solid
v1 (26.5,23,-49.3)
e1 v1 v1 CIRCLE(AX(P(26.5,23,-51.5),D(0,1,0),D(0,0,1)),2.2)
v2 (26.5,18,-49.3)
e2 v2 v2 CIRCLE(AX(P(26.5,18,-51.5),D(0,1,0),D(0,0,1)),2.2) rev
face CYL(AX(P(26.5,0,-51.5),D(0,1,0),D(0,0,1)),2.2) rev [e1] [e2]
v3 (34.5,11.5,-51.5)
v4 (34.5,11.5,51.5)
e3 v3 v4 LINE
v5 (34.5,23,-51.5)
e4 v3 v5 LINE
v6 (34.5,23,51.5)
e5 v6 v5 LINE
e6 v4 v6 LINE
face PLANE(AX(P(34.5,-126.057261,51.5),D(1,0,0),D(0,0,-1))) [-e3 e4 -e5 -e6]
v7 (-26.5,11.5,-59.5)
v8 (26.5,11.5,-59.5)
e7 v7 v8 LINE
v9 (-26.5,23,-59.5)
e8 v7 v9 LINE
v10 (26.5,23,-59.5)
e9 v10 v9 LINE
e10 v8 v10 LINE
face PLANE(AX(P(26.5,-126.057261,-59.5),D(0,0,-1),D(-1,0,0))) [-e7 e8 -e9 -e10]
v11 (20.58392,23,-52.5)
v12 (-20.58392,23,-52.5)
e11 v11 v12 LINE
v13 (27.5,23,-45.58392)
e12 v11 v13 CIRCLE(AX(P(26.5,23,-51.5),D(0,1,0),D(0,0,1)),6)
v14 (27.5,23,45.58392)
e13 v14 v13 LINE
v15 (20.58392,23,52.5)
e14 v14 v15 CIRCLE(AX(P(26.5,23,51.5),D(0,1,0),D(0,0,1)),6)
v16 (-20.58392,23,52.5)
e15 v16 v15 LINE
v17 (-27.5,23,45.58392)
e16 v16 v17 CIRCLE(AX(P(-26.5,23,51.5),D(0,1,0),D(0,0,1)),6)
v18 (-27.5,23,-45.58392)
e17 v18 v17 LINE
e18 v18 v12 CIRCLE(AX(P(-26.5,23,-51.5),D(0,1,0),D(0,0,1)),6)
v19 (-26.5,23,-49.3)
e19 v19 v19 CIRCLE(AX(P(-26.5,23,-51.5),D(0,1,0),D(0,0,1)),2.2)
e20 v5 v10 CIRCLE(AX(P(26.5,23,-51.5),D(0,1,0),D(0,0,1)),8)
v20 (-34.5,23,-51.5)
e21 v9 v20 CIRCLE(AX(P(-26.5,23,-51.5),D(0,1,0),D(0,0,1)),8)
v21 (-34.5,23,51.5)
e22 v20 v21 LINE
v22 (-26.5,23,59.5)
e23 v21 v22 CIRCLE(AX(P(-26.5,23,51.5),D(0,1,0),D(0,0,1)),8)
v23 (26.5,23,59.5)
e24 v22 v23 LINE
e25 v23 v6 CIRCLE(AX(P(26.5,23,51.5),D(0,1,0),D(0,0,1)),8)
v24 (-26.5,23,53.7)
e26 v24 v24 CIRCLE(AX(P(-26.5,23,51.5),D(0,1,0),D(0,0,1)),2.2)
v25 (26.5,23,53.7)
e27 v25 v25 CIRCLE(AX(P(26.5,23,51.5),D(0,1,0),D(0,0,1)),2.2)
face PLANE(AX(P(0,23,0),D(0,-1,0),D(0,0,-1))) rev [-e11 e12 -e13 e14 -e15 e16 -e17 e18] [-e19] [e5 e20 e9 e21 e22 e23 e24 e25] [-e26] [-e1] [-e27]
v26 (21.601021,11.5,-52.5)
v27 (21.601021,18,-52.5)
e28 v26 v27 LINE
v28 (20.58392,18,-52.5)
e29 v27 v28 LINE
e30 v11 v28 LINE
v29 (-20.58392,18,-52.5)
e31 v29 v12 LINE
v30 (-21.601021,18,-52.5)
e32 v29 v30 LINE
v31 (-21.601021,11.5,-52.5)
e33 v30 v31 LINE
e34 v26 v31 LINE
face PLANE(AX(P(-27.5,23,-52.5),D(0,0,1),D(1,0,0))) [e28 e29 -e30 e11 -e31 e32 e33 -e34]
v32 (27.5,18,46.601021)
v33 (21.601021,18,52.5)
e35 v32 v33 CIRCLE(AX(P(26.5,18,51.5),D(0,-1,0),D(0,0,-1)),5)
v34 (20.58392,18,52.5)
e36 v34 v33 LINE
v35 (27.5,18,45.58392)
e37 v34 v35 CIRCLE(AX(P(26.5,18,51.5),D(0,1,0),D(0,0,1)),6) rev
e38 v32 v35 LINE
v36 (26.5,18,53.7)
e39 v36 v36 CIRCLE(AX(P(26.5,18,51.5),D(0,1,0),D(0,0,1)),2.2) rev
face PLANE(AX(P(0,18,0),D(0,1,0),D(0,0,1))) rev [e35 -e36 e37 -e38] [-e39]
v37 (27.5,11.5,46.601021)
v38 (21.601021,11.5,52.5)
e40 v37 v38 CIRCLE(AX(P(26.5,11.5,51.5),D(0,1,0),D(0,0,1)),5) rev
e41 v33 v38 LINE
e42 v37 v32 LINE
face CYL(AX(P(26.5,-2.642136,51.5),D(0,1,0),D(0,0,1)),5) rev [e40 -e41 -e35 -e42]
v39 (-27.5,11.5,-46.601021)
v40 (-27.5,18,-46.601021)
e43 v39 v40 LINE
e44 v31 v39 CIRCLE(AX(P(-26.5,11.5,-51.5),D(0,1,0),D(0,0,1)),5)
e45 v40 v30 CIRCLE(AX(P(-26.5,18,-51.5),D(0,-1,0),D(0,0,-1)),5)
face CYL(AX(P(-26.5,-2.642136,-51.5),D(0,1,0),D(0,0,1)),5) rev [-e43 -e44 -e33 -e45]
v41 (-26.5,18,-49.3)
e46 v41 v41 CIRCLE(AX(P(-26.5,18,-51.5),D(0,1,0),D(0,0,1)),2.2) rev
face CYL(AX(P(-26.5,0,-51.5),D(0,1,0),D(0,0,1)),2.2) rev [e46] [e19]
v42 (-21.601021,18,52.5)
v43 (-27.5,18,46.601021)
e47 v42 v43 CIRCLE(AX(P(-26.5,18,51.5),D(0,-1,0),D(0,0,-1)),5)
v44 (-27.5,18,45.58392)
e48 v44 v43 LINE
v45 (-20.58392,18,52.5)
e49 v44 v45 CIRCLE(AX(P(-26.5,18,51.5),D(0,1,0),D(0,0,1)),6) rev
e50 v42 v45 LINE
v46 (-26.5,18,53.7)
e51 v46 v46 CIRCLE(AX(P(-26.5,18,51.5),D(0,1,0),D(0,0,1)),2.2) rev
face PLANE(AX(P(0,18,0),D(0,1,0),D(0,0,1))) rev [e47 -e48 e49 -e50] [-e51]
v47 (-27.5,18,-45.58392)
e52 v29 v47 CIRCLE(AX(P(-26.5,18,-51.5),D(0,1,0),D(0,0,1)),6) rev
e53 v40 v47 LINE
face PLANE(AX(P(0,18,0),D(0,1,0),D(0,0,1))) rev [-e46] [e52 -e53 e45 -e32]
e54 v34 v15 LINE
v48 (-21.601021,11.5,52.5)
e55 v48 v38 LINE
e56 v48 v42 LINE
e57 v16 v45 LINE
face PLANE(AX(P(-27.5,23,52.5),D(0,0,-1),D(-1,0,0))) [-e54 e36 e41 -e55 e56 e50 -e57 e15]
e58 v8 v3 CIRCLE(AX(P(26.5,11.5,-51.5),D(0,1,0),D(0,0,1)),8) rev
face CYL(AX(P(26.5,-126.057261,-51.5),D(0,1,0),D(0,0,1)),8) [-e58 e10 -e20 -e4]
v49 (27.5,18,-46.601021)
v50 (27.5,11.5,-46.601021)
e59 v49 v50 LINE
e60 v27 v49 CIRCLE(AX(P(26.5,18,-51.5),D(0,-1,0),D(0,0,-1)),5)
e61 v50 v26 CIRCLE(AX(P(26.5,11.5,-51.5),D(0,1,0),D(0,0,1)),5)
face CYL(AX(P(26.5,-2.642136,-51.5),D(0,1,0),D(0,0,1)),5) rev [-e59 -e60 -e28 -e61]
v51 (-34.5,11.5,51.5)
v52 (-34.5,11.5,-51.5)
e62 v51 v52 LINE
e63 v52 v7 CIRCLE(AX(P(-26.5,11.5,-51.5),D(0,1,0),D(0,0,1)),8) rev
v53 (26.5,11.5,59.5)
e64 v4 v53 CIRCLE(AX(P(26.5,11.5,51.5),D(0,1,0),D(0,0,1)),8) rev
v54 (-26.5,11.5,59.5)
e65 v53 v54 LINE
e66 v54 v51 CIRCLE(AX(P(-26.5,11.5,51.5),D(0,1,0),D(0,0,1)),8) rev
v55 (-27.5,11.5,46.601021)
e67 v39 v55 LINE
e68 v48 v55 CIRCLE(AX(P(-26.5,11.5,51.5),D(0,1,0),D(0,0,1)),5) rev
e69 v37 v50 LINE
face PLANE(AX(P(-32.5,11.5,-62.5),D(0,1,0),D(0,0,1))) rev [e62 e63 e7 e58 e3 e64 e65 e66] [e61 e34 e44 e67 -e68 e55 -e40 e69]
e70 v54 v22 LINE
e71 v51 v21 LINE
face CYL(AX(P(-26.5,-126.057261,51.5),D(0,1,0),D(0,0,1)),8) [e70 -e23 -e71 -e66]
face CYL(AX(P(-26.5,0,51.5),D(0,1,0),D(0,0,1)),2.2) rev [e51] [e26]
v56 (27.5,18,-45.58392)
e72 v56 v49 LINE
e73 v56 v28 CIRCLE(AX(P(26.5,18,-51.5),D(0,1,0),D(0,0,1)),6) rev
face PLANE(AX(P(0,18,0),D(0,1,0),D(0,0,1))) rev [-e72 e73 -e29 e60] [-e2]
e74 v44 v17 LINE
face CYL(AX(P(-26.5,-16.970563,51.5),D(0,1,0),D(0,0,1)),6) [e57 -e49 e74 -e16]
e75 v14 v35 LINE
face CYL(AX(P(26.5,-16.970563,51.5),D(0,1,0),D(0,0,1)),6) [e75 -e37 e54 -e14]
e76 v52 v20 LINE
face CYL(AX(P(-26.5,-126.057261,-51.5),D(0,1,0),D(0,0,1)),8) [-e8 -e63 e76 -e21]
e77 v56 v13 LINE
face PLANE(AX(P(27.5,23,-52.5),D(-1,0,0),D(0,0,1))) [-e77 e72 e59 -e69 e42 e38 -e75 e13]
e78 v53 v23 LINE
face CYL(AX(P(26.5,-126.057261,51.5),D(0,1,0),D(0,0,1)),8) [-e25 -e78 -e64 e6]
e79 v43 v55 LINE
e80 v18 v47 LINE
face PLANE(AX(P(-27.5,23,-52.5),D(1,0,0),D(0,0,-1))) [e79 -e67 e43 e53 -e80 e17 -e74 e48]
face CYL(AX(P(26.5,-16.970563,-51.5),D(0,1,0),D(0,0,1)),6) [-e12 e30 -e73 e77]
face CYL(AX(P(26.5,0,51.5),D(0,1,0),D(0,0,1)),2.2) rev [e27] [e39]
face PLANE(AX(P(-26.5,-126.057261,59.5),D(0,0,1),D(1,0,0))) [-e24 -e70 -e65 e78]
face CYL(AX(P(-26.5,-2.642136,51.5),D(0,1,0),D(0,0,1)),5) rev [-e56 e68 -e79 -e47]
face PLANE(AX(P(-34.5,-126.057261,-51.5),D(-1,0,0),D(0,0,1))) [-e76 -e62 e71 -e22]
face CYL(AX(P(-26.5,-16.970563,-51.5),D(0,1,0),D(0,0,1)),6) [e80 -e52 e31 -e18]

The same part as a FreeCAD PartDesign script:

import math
import FreeCAD as App
import Part
import Sketcher


def edges_at(feature, points):
    """Names of the edges that pass closest to the given points."""
    edges = feature.Shape.Edges
    near = lambda p: min(range(len(edges)), key=lambda i: edges[i].distToShape(Part.Vertex(*p))[0])
    return sorted({f"Edge{near(p) + 1}" for p in points})

doc = App.newDocument("Part")
params = doc.addObject("Spreadsheet::Sheet", "Params")
for row, (alias, value) in enumerate([
    ("sketch1_width", "65 mm"),
    ("sketch1_width2", "55 mm"),
    ("sketch1_height", "115 mm"),
    ("sketch1_height2", "105 mm"),
    ("pad1_length", "23 mm"),
    ("fillet_radius", "6 mm"),
    ("sketch2_diameter", "12 mm"),
    ("pad2_length", "23 mm"),
    ("sketch3_diameter", "4.4 mm"),
    ("pocket1_length", "23 mm"),
    ("sketch4_width", "55 mm"),
    ("sketch4_height", "105 mm"),
    ("pocket2_length", "13 mm"),
    ("sketch5_width", "65 mm"),
    ("sketch5_height", "11.5 mm"),
    ("pocket3_length", "120 mm"),
    ("sketch6_diameter", "10 mm"),
    ("pocket4_length", "6.5 mm"),
    ("sketch7_radius", "8 mm"),
    ("sketch7_radius2", "6 mm"),
    ("sketch7_width", "53 mm"),
    ("sketch7_height", "103 mm"),
    ("pad3_length", "11.5 mm"),
], start=1):
    params.set(f"A{row}", alias)
    params.set(f"B{row}", "=" + value)
    params.setAlias(f"B{row}", alias)

body = doc.addObject("PartDesign::Body", "Body")

# Sketch on XZ plane
sketch1 = body.newObject("Sketcher::SketchObject", "Sketch")
sketch1.AttachmentSupport = (doc.getObject("XZ_Plane"), [""])
sketch1.MapMode = "FlatFace"
sketch1.addGeometry([
    Part.LineSegment(App.Vector(-32.5, -57.5, 0), App.Vector(-32.5, 57.5, 0)),  # 0
    Part.LineSegment(App.Vector(-32.5, 57.5, 0), App.Vector(32.5, 57.5, 0)),  # 1
    Part.LineSegment(App.Vector(32.5, 57.5, 0), App.Vector(32.5, -57.5, 0)),  # 2
    Part.LineSegment(App.Vector(32.5, -57.5, 0), App.Vector(-32.5, -57.5, 0)),  # 3
    Part.LineSegment(App.Vector(27.5, 52.5, 0), App.Vector(-27.5, 52.5, 0)),  # 4
    Part.LineSegment(App.Vector(-27.5, 52.5, 0), App.Vector(-27.5, -52.5, 0)),  # 5
    Part.LineSegment(App.Vector(-27.5, -52.5, 0), App.Vector(27.5, -52.5, 0)),  # 6
    Part.LineSegment(App.Vector(27.5, -52.5, 0), App.Vector(27.5, 52.5, 0)),  # 7
], False)
sketch1.addConstraint([
    Sketcher.Constraint("Coincident", 0, 2, 1, 1),
    Sketcher.Constraint("Coincident", 1, 2, 2, 1),
    Sketcher.Constraint("Coincident", 2, 2, 3, 1),
    Sketcher.Constraint("Coincident", 3, 2, 0, 1),
    Sketcher.Constraint("Coincident", 4, 2, 5, 1),
    Sketcher.Constraint("Coincident", 5, 2, 6, 1),
    Sketcher.Constraint("Coincident", 6, 2, 7, 1),
    Sketcher.Constraint("Coincident", 7, 2, 4, 1),
    Sketcher.Constraint("Vertical", 0),
    Sketcher.Constraint("Horizontal", 1),
    Sketcher.Constraint("Vertical", 2),
    Sketcher.Constraint("Horizontal", 3),
    Sketcher.Constraint("Horizontal", 4),
    Sketcher.Constraint("Vertical", 5),
    Sketcher.Constraint("Horizontal", 6),
    Sketcher.Constraint("Vertical", 7),
    Sketcher.Constraint("Symmetric", 0, 2, 2, 2, -1, 1),
    Sketcher.Constraint("Symmetric", 4, 2, 6, 2, -1, 1),
    Sketcher.Constraint("DistanceX", 1, 1, 1, 2, 65.0),
    Sketcher.Constraint("DistanceX", 4, 2, 4, 1, 55.0),
    Sketcher.Constraint("DistanceY", 0, 1, 0, 2, 115.0),
    Sketcher.Constraint("DistanceY", 5, 2, 5, 1, 105.0),
])
sketch1.setExpression("Constraints[18]", "Params.sketch1_width")
sketch1.setExpression("Constraints[19]", "Params.sketch1_width2")
sketch1.setExpression("Constraints[20]", "Params.sketch1_height")
sketch1.setExpression("Constraints[21]", "Params.sketch1_height2")
pad1 = body.newObject("PartDesign::Pad", "Pad")
pad1.Profile = sketch1
pad1.setExpression("Length", "Params.pad1_length")
pad1.Reversed = True
doc.recompute()

fillet = body.newObject("PartDesign::Fillet", "Fillet")
fillet.Base = (pad1, edges_at(pad1, [
    (32.5, 11.5, 57.5),
    (-32.5, 11.5, 57.5),
    (-32.5, 11.5, -57.5),
    (32.5, 11.5, -57.5),
]))
fillet.setExpression("Radius", "Params.fillet_radius")

# Sketch on XZ plane
sketch2 = body.newObject("Sketcher::SketchObject", "Sketch001")
sketch2.AttachmentSupport = (doc.getObject("XZ_Plane"), [""])
sketch2.MapMode = "FlatFace"
sketch2.AttachmentOffset = App.Placement(App.Vector(0, 0, -23), App.Rotation())
sketch2.addGeometry([
    Part.Circle(App.Vector(-26.5, -51.5, 0), App.Vector(0, 0, 1), 6),
    Part.Circle(App.Vector(26.5, -51.5, 0), App.Vector(0, 0, 1), 6),
    Part.Circle(App.Vector(-26.5, 51.5, 0), App.Vector(0, 0, 1), 6),
    Part.Circle(App.Vector(26.5, 51.5, 0), App.Vector(0, 0, 1), 6),
], False)
sketch2.addConstraint([
    Sketcher.Constraint("Equal", 0, 1),
    Sketcher.Constraint("Equal", 1, 2),
    Sketcher.Constraint("Equal", 2, 3),
    Sketcher.Constraint("Symmetric", 1, 3, 2, 3, -1, 1),
    Sketcher.Constraint("Symmetric", 0, 3, 3, 3, -1, 1),
    Sketcher.Constraint("Symmetric", 0, 3, 1, 3, -2),
    Sketcher.Constraint("Diameter", 0, 12.0),
    Sketcher.Constraint("DistanceX", 0, 3, 1, 3, 53.0),
    Sketcher.Constraint("DistanceY", 0, 3, 2, 3, 103.0),
])
sketch2.setExpression("Constraints[6]", "Params.sketch2_diameter")
pad2 = body.newObject("PartDesign::Pad", "Pad001")
pad2.Profile = sketch2
pad2.setExpression("Length", "Params.pad2_length")

# Sketch on XZ plane
sketch3 = body.newObject("Sketcher::SketchObject", "Sketch002")
sketch3.AttachmentSupport = (doc.getObject("XZ_Plane"), [""])
sketch3.MapMode = "FlatFace"
sketch3.AttachmentOffset = App.Placement(App.Vector(0, 0, -23), App.Rotation())
sketch3.addGeometry([
    Part.Circle(App.Vector(-26.5, -51.5, 0), App.Vector(0, 0, 1), 2.2),
    Part.Circle(App.Vector(26.5, -51.5, 0), App.Vector(0, 0, 1), 2.2),
    Part.Circle(App.Vector(26.5, 51.5, 0), App.Vector(0, 0, 1), 2.2),
    Part.Circle(App.Vector(-26.5, 51.5, 0), App.Vector(0, 0, 1), 2.2),
], False)
sketch3.addConstraint([
    Sketcher.Constraint("Equal", 0, 1),
    Sketcher.Constraint("Equal", 1, 2),
    Sketcher.Constraint("Equal", 2, 3),
    Sketcher.Constraint("Symmetric", 0, 3, 2, 3, -1, 1),
    Sketcher.Constraint("Symmetric", 1, 3, 3, 3, -1, 1),
    Sketcher.Constraint("Symmetric", 0, 3, 1, 3, -2),
    Sketcher.Constraint("Diameter", 0, 4.4),
    Sketcher.Constraint("DistanceX", 0, 3, 1, 3, 53.0),
    Sketcher.Constraint("DistanceY", 1, 3, 2, 3, 103.0),
])
sketch3.setExpression("Constraints[6]", "Params.sketch3_diameter")
pocket1 = body.newObject("PartDesign::Pocket", "Pocket")
pocket1.Profile = sketch3
pocket1.setExpression("Length", "Params.pocket1_length")
pocket1.Reversed = True

# Sketch on XZ plane
sketch4 = body.newObject("Sketcher::SketchObject", "Sketch003")
sketch4.AttachmentSupport = (doc.getObject("XZ_Plane"), [""])
sketch4.MapMode = "FlatFace"
sketch4.AttachmentOffset = App.Placement(App.Vector(0, 0, -18), App.Rotation())
sketch4.addGeometry([
    Part.LineSegment(App.Vector(-27.5, -52.5, 0), App.Vector(-27.5, 52.5, 0)),
    Part.LineSegment(App.Vector(-27.5, 52.5, 0), App.Vector(27.5, 52.5, 0)),
    Part.LineSegment(App.Vector(27.5, 52.5, 0), App.Vector(27.5, -52.5, 0)),
    Part.LineSegment(App.Vector(27.5, -52.5, 0), App.Vector(-27.5, -52.5, 0)),
], False)
sketch4.addConstraint([
    Sketcher.Constraint("Coincident", 0, 2, 1, 1),
    Sketcher.Constraint("Coincident", 1, 2, 2, 1),
    Sketcher.Constraint("Coincident", 2, 2, 3, 1),
    Sketcher.Constraint("Coincident", 3, 2, 0, 1),
    Sketcher.Constraint("Vertical", 0),
    Sketcher.Constraint("Horizontal", 1),
    Sketcher.Constraint("Vertical", 2),
    Sketcher.Constraint("Horizontal", 3),
    Sketcher.Constraint("Symmetric", 0, 2, 2, 2, -1, 1),
    Sketcher.Constraint("DistanceX", 1, 1, 1, 2, 55.0),
    Sketcher.Constraint("DistanceY", 0, 1, 0, 2, 105.0),
])
sketch4.setExpression("Constraints[9]", "Params.sketch4_width")
sketch4.setExpression("Constraints[10]", "Params.sketch4_height")
pocket2 = body.newObject("PartDesign::Pocket", "Pocket001")
pocket2.Profile = sketch4
pocket2.setExpression("Length", "Params.pocket2_length")
pocket2.Reversed = True

# Sketch on XY plane
sketch5 = body.newObject("Sketcher::SketchObject", "Sketch004")
sketch5.AttachmentSupport = (doc.getObject("XY_Plane"), [""])
sketch5.MapMode = "FlatFace"
sketch5.AttachmentOffset = App.Placement(App.Vector(0, 0, 57.5), App.Rotation())
sketch5.addGeometry([
    Part.LineSegment(App.Vector(-32.5, 11.5, 0), App.Vector(-32.5, 0, 0)),
    Part.LineSegment(App.Vector(-32.5, 0, 0), App.Vector(32.5, 0, 0)),
    Part.LineSegment(App.Vector(32.5, 0, 0), App.Vector(32.5, 11.5, 0)),
    Part.LineSegment(App.Vector(32.5, 11.5, 0), App.Vector(-32.5, 11.5, 0)),
], False)
sketch5.addConstraint([
    Sketcher.Constraint("Coincident", 0, 2, 1, 1),
    Sketcher.Constraint("Coincident", 1, 2, 2, 1),
    Sketcher.Constraint("Coincident", 2, 2, 3, 1),
    Sketcher.Constraint("Coincident", 3, 2, 0, 1),
    Sketcher.Constraint("Vertical", 0),
    Sketcher.Constraint("Horizontal", 1),
    Sketcher.Constraint("Vertical", 2),
    Sketcher.Constraint("Horizontal", 3),
    Sketcher.Constraint("Symmetric", 0, 2, 1, 2, -1, 1),
    Sketcher.Constraint("DistanceX", 1, 1, 1, 2, 65.0),
    Sketcher.Constraint("DistanceY", 0, 2, 0, 1, 11.5),
])
sketch5.setExpression("Constraints[9]", "Params.sketch5_width")
sketch5.setExpression("Constraints[10]", "Params.sketch5_height")
pocket3 = body.newObject("PartDesign::Pocket", "Pocket002")
pocket3.Profile = sketch5
pocket3.setExpression("Length", "Params.pocket3_length")

# Sketch on XZ plane
sketch6 = body.newObject("Sketcher::SketchObject", "Sketch005")
sketch6.AttachmentSupport = (doc.getObject("XZ_Plane"), [""])
sketch6.MapMode = "FlatFace"
sketch6.AttachmentOffset = App.Placement(App.Vector(0, 0, -18), App.Rotation())
sketch6.addGeometry([
    Part.Circle(App.Vector(-26.5, -51.5, 0), App.Vector(0, 0, 1), 5),
    Part.Circle(App.Vector(26.5, -51.5, 0), App.Vector(0, 0, 1), 5),
    Part.Circle(App.Vector(26.5, 51.5, 0), App.Vector(0, 0, 1), 5),
    Part.Circle(App.Vector(-26.5, 51.5, 0), App.Vector(0, 0, 1), 5),
], False)
sketch6.addConstraint([
    Sketcher.Constraint("Equal", 0, 1),
    Sketcher.Constraint("Equal", 1, 2),
    Sketcher.Constraint("Equal", 2, 3),
    Sketcher.Constraint("Symmetric", 0, 3, 2, 3, -1, 1),
    Sketcher.Constraint("Symmetric", 1, 3, 3, 3, -1, 1),
    Sketcher.Constraint("Symmetric", 0, 3, 1, 3, -2),
    Sketcher.Constraint("Diameter", 0, 10.0),
    Sketcher.Constraint("DistanceX", 0, 3, 1, 3, 53.0),
    Sketcher.Constraint("DistanceY", 1, 3, 2, 3, 103.0),
])
sketch6.setExpression("Constraints[6]", "Params.sketch6_diameter")
pocket4 = body.newObject("PartDesign::Pocket", "Pocket003")
pocket4.Profile = sketch6
pocket4.setExpression("Length", "Params.pocket4_length")
pocket4.Reversed = True

# Sketch on XZ plane
sketch7 = body.newObject("Sketcher::SketchObject", "Sketch006")
sketch7.AttachmentSupport = (doc.getObject("XZ_Plane"), [""])
sketch7.MapMode = "FlatFace"
sketch7.AttachmentOffset = App.Placement(App.Vector(0, 0, -23), App.Rotation())
sketch7.addGeometry([
    Part.LineSegment(App.Vector(-26.5, 59.5, 0), App.Vector(26.5, 59.5, 0)),  # 0
    Part.ArcOfCircle(Part.Circle(App.Vector(26.5, 51.5, 0), App.Vector(0, 0, 1), 8), math.radians(0), math.radians(90)),  # 1
    Part.LineSegment(App.Vector(34.5, 51.5, 0), App.Vector(34.5, -51.5, 0)),  # 2
    Part.ArcOfCircle(Part.Circle(App.Vector(26.5, -51.5, 0), App.Vector(0, 0, 1), 8), math.radians(-90), math.radians(0)),  # 3
    Part.LineSegment(App.Vector(26.5, -59.5, 0), App.Vector(-26.5, -59.5, 0)),  # 4
    Part.ArcOfCircle(Part.Circle(App.Vector(-26.5, -51.5, 0), App.Vector(0, 0, 1), 8), math.radians(-180), math.radians(-90)),  # 5
    Part.LineSegment(App.Vector(-34.5, -51.5, 0), App.Vector(-34.5, 51.5, 0)),  # 6
    Part.ArcOfCircle(Part.Circle(App.Vector(-26.5, 51.5, 0), App.Vector(0, 0, 1), 8), math.radians(90), math.radians(180)),  # 7
    Part.LineSegment(App.Vector(26.5, 57.5, 0), App.Vector(-26.5, 57.5, 0)),  # 8
    Part.ArcOfCircle(Part.Circle(App.Vector(-26.5, 51.5, 0), App.Vector(0, 0, 1), 6), math.radians(90), math.radians(180)),  # 9
    Part.LineSegment(App.Vector(-32.5, 51.5, 0), App.Vector(-32.5, -51.5, 0)),  # 10
    Part.ArcOfCircle(Part.Circle(App.Vector(-26.5, -51.5, 0), App.Vector(0, 0, 1), 6), math.radians(180), math.radians(270)),  # 11
    Part.LineSegment(App.Vector(-26.5, -57.5, 0), App.Vector(26.5, -57.5, 0)),  # 12
    Part.ArcOfCircle(Part.Circle(App.Vector(26.5, -51.5, 0), App.Vector(0, 0, 1), 6), math.radians(-90), math.radians(0)),  # 13
    Part.LineSegment(App.Vector(32.5, -51.5, 0), App.Vector(32.5, 51.5, 0)),  # 14
    Part.ArcOfCircle(Part.Circle(App.Vector(26.5, 51.5, 0), App.Vector(0, 0, 1), 6), math.radians(0), math.radians(90)),  # 15
], False)
sketch7.addConstraint([
    Sketcher.Constraint("Tangent", 0, 2, 1, 2),
    Sketcher.Constraint("Tangent", 1, 1, 2, 1),
    Sketcher.Constraint("Tangent", 2, 2, 3, 2),
    Sketcher.Constraint("Tangent", 3, 1, 4, 1),
    Sketcher.Constraint("Tangent", 4, 2, 5, 2),
    Sketcher.Constraint("Tangent", 5, 1, 6, 1),
    Sketcher.Constraint("Tangent", 6, 2, 7, 2),
    Sketcher.Constraint("Tangent", 7, 1, 0, 1),
    Sketcher.Constraint("Tangent", 8, 2, 9, 1),
    Sketcher.Constraint("Tangent", 9, 2, 10, 1),
    Sketcher.Constraint("Tangent", 10, 2, 11, 1),
    Sketcher.Constraint("Tangent", 11, 2, 12, 1),
    Sketcher.Constraint("Tangent", 12, 2, 13, 1),
    Sketcher.Constraint("Tangent", 13, 2, 14, 1),
    Sketcher.Constraint("Tangent", 14, 2, 15, 1),
    Sketcher.Constraint("Tangent", 15, 2, 8, 1),
    Sketcher.Constraint("Horizontal", 0),
    Sketcher.Constraint("Vertical", 2),
    Sketcher.Constraint("Horizontal", 4),
    Sketcher.Constraint("Vertical", 6),
    Sketcher.Constraint("Horizontal", 8),
    Sketcher.Constraint("Vertical", 10),
    Sketcher.Constraint("Horizontal", 12),
    Sketcher.Constraint("Vertical", 14),
    Sketcher.Constraint("Coincident", 9, 3, 7, 3),
    Sketcher.Constraint("Coincident", 11, 3, 5, 3),
    Sketcher.Constraint("Coincident", 13, 3, 3, 3),
    Sketcher.Constraint("Equal", 1, 3),
    Sketcher.Constraint("Equal", 3, 5),
    Sketcher.Constraint("Equal", 5, 7),
    Sketcher.Constraint("Equal", 13, 15),
    Sketcher.Constraint("Symmetric", 1, 3, 5, 3, -1, 1),
    Sketcher.Constraint("Radius", 1, 8.0),
    Sketcher.Constraint("Radius", 9, 6.0),
    Sketcher.Constraint("DistanceX", 0, 1, 0, 2, 53.0),
    Sketcher.Constraint("DistanceY", 2, 2, 2, 1, 103.0),
])
sketch7.setExpression("Constraints[32]", "Params.sketch7_radius")
sketch7.setExpression("Constraints[33]", "Params.sketch7_radius2")
sketch7.setExpression("Constraints[34]", "Params.sketch7_width")
sketch7.setExpression("Constraints[35]", "Params.sketch7_height")
pad3 = body.newObject("PartDesign::Pad", "Pad002")
pad3.Profile = sketch7
pad3.setExpression("Length", "Params.pad3_length")

doc.recompute()
